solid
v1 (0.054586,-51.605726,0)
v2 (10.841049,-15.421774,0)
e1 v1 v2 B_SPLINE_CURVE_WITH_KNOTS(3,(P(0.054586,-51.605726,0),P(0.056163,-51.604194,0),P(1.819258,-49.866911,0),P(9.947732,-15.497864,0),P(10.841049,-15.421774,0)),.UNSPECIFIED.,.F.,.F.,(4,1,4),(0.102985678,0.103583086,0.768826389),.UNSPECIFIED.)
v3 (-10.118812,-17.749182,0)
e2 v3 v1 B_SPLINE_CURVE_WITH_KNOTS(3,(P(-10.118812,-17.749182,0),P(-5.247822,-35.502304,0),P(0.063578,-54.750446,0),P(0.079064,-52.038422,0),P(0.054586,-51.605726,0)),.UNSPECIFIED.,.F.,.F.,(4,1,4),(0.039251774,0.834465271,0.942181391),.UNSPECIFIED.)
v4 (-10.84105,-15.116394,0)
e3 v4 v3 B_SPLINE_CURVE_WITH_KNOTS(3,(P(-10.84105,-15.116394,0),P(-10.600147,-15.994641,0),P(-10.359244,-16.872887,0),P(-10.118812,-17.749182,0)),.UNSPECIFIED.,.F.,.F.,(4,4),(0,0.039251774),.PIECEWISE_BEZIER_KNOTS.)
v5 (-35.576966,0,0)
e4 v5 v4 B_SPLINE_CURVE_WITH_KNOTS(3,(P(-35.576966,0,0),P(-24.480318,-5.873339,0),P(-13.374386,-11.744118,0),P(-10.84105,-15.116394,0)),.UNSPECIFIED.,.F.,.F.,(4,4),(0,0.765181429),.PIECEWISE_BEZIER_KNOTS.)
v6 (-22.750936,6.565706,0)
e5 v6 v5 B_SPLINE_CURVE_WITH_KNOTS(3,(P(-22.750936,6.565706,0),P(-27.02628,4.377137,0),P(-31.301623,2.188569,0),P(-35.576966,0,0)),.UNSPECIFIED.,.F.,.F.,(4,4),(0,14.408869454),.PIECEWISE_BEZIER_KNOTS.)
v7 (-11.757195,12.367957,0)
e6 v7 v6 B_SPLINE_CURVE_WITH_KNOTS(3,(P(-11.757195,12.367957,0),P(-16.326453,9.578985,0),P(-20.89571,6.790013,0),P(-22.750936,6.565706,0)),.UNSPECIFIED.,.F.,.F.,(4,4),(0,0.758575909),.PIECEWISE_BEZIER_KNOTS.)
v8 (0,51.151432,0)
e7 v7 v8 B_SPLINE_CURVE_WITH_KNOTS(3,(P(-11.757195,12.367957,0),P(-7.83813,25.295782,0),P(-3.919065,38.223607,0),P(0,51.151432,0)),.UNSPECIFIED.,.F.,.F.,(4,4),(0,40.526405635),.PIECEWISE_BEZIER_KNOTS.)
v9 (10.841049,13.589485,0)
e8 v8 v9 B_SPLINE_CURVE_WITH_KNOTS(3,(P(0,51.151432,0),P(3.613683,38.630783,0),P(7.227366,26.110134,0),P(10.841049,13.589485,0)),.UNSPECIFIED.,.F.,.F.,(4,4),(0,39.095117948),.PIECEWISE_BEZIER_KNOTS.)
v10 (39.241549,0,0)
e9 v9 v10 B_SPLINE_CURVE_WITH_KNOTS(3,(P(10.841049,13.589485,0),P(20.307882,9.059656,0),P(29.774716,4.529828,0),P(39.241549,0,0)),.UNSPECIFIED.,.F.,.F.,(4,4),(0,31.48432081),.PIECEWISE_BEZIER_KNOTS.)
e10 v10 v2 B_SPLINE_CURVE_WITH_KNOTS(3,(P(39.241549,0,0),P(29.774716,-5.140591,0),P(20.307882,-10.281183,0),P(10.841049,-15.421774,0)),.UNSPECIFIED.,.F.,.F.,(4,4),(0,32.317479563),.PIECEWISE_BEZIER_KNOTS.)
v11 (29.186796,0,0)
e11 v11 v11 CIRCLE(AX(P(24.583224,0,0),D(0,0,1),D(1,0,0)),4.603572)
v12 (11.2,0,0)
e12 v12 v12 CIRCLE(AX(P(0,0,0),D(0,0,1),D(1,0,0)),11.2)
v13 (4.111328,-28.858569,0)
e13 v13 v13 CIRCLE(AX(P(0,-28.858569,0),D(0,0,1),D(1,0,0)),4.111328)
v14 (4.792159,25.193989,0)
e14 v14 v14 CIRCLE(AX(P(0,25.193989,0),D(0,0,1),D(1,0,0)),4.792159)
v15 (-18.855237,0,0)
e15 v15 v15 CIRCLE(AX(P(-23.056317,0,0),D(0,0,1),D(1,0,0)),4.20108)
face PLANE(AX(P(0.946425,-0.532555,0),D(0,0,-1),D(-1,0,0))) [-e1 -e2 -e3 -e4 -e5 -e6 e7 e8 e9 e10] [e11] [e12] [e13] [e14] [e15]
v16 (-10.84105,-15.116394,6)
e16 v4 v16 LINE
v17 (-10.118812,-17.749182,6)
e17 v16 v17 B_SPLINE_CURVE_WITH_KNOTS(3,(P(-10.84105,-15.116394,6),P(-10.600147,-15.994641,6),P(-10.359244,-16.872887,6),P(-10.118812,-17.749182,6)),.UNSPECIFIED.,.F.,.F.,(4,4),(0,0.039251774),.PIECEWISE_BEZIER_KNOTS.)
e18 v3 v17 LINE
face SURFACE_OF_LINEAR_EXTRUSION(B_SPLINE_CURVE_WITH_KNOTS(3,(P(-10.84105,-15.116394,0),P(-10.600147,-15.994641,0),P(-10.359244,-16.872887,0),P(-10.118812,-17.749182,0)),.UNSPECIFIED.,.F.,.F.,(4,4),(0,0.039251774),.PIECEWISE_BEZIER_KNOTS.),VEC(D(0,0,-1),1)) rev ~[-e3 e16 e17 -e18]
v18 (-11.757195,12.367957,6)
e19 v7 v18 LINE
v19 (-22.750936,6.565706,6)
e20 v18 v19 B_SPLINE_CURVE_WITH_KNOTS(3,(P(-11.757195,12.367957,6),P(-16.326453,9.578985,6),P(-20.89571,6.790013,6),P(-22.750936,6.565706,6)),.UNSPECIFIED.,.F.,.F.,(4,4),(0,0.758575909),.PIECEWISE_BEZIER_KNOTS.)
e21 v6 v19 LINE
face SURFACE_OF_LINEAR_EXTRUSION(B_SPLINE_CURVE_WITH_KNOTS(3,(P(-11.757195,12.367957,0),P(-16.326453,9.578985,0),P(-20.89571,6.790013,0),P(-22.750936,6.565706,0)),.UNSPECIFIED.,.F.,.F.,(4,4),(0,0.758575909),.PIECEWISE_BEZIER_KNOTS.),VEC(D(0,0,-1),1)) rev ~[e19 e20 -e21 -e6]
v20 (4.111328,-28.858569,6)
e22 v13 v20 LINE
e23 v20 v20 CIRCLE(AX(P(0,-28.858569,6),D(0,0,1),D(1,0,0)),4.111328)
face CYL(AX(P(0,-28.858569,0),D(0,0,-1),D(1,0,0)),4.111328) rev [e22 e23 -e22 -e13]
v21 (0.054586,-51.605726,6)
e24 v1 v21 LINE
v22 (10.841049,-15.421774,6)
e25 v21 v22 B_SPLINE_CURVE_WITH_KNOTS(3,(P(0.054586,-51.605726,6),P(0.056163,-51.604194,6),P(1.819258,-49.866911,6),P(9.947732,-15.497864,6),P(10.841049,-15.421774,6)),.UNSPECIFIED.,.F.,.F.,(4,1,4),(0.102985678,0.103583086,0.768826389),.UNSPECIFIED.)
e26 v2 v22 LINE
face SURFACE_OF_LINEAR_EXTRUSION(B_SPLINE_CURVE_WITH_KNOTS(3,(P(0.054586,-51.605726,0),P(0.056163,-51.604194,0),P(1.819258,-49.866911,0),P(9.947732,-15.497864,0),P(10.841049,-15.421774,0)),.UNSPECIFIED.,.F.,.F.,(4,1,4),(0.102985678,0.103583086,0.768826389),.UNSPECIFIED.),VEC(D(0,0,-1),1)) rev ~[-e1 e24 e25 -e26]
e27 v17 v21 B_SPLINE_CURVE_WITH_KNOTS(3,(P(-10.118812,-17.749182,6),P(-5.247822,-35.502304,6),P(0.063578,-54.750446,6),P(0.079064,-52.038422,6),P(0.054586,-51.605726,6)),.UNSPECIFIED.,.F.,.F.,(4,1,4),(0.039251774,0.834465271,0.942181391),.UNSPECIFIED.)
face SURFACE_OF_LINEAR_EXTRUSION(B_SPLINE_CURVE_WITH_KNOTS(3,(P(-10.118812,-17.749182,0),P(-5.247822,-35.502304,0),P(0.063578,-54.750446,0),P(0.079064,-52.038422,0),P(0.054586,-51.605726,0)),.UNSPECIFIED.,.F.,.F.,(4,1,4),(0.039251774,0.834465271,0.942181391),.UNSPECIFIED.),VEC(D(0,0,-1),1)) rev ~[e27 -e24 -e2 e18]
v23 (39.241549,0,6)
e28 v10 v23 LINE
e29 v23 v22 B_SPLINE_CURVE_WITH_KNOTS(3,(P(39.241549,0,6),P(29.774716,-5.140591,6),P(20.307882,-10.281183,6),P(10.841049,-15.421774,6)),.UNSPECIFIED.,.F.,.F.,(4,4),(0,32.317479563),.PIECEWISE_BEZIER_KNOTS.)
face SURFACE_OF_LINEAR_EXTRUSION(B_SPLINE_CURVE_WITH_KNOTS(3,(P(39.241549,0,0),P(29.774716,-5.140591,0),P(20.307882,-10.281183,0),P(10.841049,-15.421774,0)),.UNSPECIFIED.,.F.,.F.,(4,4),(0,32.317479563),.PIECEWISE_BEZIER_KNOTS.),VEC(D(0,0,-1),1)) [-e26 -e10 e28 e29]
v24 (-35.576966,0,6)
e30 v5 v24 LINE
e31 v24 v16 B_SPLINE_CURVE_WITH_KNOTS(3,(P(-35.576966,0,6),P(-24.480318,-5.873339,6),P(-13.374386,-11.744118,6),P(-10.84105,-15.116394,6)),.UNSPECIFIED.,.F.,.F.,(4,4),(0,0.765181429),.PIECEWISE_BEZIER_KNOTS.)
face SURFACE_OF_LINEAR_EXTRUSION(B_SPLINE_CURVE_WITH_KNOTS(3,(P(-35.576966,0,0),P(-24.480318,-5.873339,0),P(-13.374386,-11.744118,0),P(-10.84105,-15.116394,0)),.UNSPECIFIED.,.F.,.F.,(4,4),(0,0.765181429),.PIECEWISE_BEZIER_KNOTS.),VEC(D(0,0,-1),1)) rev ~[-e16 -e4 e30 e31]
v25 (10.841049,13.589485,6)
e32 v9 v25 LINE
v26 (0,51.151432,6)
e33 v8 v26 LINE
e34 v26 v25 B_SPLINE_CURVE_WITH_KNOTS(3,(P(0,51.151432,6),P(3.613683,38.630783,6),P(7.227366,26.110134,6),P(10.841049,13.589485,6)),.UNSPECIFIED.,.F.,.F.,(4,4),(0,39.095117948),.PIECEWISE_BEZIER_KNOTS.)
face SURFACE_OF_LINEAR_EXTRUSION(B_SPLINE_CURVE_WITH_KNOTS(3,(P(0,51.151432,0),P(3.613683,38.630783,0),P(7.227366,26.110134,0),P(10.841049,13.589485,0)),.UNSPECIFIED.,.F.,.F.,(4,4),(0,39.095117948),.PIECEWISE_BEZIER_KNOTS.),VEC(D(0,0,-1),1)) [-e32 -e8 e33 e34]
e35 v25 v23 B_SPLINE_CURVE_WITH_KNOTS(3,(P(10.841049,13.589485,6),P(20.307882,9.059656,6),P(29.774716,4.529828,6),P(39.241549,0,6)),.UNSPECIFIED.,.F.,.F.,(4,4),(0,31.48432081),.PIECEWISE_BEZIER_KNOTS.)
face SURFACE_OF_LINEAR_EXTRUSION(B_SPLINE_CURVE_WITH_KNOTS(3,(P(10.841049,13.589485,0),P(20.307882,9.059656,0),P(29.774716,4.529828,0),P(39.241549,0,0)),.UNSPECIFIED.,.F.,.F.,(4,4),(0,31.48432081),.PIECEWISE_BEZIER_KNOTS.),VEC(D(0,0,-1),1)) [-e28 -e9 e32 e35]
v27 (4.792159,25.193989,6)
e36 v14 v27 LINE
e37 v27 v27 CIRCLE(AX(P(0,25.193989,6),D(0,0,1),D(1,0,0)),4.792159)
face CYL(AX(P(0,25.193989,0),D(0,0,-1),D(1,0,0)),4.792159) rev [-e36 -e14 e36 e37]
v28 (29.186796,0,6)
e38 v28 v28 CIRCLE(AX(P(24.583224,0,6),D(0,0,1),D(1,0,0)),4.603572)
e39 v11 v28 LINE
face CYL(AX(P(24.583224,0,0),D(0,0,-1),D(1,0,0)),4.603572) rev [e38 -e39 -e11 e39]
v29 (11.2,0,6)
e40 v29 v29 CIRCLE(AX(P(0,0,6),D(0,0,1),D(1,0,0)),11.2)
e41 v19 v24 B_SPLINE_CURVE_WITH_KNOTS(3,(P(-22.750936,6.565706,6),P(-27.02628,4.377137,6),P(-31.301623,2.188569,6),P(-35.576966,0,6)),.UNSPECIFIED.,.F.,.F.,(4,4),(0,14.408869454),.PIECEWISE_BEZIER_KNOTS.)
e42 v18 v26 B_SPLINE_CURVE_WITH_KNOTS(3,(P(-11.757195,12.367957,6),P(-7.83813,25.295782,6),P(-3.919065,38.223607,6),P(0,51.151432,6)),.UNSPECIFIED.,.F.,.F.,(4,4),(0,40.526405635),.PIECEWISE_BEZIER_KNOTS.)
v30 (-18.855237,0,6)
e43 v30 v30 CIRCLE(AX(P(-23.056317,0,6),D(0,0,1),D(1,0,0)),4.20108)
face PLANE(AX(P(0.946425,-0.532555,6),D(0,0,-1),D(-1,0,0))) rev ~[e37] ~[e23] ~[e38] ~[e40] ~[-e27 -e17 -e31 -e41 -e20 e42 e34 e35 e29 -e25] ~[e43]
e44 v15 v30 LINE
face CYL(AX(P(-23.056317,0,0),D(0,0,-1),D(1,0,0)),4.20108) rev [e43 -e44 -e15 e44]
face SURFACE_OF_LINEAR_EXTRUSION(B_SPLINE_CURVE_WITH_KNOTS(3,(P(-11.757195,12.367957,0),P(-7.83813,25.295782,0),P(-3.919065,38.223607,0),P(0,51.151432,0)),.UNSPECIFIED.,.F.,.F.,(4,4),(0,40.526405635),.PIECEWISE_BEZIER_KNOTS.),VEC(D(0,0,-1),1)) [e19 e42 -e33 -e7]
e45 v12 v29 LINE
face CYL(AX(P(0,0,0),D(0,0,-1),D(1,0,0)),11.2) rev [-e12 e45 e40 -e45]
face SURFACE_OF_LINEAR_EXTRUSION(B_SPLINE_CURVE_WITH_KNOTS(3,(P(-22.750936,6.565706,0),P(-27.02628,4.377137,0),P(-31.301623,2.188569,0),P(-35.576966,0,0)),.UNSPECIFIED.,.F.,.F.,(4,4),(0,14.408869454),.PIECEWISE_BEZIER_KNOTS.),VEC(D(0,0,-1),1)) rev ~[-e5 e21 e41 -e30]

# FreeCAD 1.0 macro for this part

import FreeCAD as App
import Part
import Sketcher
from FreeCAD import Vector
Q = App.Units.Quantity

doc = App.newDocument("Part")
params = doc.addObject("Spreadsheet::Sheet", "Params")
for row, (alias, value) in enumerate([
    ("sketch1_diameter", "22.4 mm"),
    ("pad1_length", "6 mm"),
], start=1):
    params.set(f"A{row}", alias)
    params.set(f"B{row}", "=" + value)
    params.setAlias(f"B{row}", alias)

body = doc.addObject("PartDesign::Body", "Body")

# Sketch on XY plane
sketch1 = body.newObject("Sketcher::SketchObject", "Sketch")
sketch1.AttachmentSupport = (doc.getObject("XY_Plane"), [""])
sketch1.MapMode = "FlatFace"
sketch1.addGeometry(Part.BSplineCurve([Vector(-11.757195, 12.367957, 0), Vector(-7.83813, 25.295782, 0), Vector(-3.919065, 38.223607, 0), Vector(0, 51.151432, 0)], [4, 4], [0, 40.526405635], False, 3, [1, 1, 1, 1], False), False)
sketch1.addGeometry(Part.BSplineCurve([Vector(-11.757195, 12.367957, 0), Vector(-16.326453, 9.578985, 0), Vector(-20.89571, 6.790013, 0), Vector(-22.750936, 6.565706, 0)], [4, 4], [0, 0.758575909], False, 3, [1, 1, 1, 1], False), False)
sketch1.addGeometry(Part.BSplineCurve([Vector(-22.750936, 6.565706, 0), Vector(-27.02628, 4.377137, 0), Vector(-31.301623, 2.188569, 0), Vector(-35.576966, 0, 0)], [4, 4], [0, 14.408869454], False, 3, [1, 1, 1, 1], False), False)
sketch1.addGeometry(Part.BSplineCurve([Vector(-35.576966, 0, 0), Vector(-24.480318, -5.873339, 0), Vector(-13.374386, -11.744118, 0), Vector(-10.84105, -15.116394, 0)], [4, 4], [0, 0.765181429], False, 3, [1, 1, 1, 1], False), False)
sketch1.addGeometry(Part.BSplineCurve([Vector(-10.84105, -15.116394, 0), Vector(-10.600147, -15.994641, 0), Vector(-10.359244, -16.872887, 0), Vector(-10.118812, -17.749182, 0)], [4, 4], [0, 0.039251774], False, 3, [1, 1, 1, 1], False), False)
sketch1.addGeometry(Part.BSplineCurve([Vector(-10.118812, -17.749182, 0), Vector(-5.247822, -35.502304, 0), Vector(0.063578, -54.750446, 0), Vector(0.079064, -52.038422, 0), Vector(0.054586, -51.605726, 0)], [4, 1, 4], [0.039251774, 0.834465271, 0.942181391], False, 3, [1, 1, 1, 1, 1], False), False)
sketch1.addGeometry(Part.BSplineCurve([Vector(0.054586, -51.605726, 0), Vector(0.056163, -51.604194, 0), Vector(1.819258, -49.866911, 0), Vector(9.947732, -15.497864, 0), Vector(10.841049, -15.421774, 0)], [4, 1, 4], [0.102985678, 0.103583086, 0.768826389], False, 3, [1, 1, 1, 1, 1], False), False)
sketch1.addGeometry(Part.BSplineCurve([Vector(39.241549, 0, 0), Vector(29.774716, -5.140591, 0), Vector(20.307882, -10.281183, 0), Vector(10.841049, -15.421774, 0)], [4, 4], [0, 32.317479563], False, 3, [1, 1, 1, 1], False), False)
sketch1.addGeometry(Part.BSplineCurve([Vector(10.841049, 13.589485, 0), Vector(20.307882, 9.059656, 0), Vector(29.774716, 4.529828, 0), Vector(39.241549, 0, 0)], [4, 4], [0, 31.48432081], False, 3, [1, 1, 1, 1], False), False)
sketch1.addGeometry(Part.BSplineCurve([Vector(0, 51.151432, 0), Vector(3.613683, 38.630783, 0), Vector(7.227366, 26.110134, 0), Vector(10.841049, 13.589485, 0)], [4, 4], [0, 39.095117948], False, 3, [1, 1, 1, 1], False), False)
sketch1.addGeometry(Part.Circle(Vector(0, -28.858569, 0), Vector(0, 0, 1), 4.111328), False)
sketch1.addGeometry(Part.Circle(Vector(24.583224, 0, 0), Vector(0, 0, 1), 4.603572), False)
sketch1.addGeometry(Part.Circle(Vector(0, 0, 0), Vector(0, 0, 1), 11.2), False)
sketch1.addGeometry(Part.Circle(Vector(-23.056317, 0, 0), Vector(0, 0, 1), 4.20108), False)
sketch1.addGeometry(Part.Circle(Vector(0, 25.193989, 0), Vector(0, 0, 1), 4.792159), False)
sketch1.addConstraint(Sketcher.Constraint("Block", 0))
sketch1.addConstraint(Sketcher.Constraint("Block", 1))
sketch1.addConstraint(Sketcher.Constraint("Block", 2))
sketch1.addConstraint(Sketcher.Constraint("Block", 3))
sketch1.addConstraint(Sketcher.Constraint("Block", 4))
sketch1.addConstraint(Sketcher.Constraint("Block", 5))
sketch1.addConstraint(Sketcher.Constraint("Block", 6))
sketch1.addConstraint(Sketcher.Constraint("Block", 7))
sketch1.addConstraint(Sketcher.Constraint("Block", 8))
sketch1.addConstraint(Sketcher.Constraint("Block", 9))
sketch1.addConstraint(Sketcher.Constraint("Coincident", 12, 3, -1, 1))
sketch1.addConstraint(Sketcher.Constraint("PointOnObject", 10, 3, -2))
sketch1.addConstraint(Sketcher.Constraint("PointOnObject", 11, 3, -1))
sketch1.addConstraint(Sketcher.Constraint("PointOnObject", 13, 3, -1))
sketch1.addConstraint(Sketcher.Constraint("PointOnObject", 14, 3, -2))
sketch1.addConstraint(Sketcher.Constraint("Diameter", 12, Q("22.4 mm")))
sketch1.addConstraint(Sketcher.Constraint("Diameter", 13, Q("8.402159 mm")))
sketch1.addConstraint(Sketcher.Constraint("Diameter", 10, Q("8.222656 mm")))
sketch1.addConstraint(Sketcher.Constraint("Diameter", 11, Q("9.207143 mm")))
sketch1.addConstraint(Sketcher.Constraint("Diameter", 14, Q("9.584317 mm")))
sketch1.addConstraint(Sketcher.Constraint("DistanceY", 10, 3, -1, 1, Q("28.858569 mm")))
sketch1.addConstraint(Sketcher.Constraint("DistanceY", -1, 1, 14, 3, Q("25.193989 mm")))
sketch1.addConstraint(Sketcher.Constraint("DistanceX", 13, 3, 11, 3, Q("47.639541 mm")))
sketch1.addConstraint(Sketcher.Constraint("DistanceX", -1, 1, 11, 3, Q("24.583224 mm")))
sketch1.setExpression("Constraints[15]", "Params.sketch1_diameter")
pad1 = body.newObject("PartDesign::Pad", "Pad")
pad1.Profile = sketch1
pad1.setExpression("Length", "Params.pad1_length")

doc.recompute()
